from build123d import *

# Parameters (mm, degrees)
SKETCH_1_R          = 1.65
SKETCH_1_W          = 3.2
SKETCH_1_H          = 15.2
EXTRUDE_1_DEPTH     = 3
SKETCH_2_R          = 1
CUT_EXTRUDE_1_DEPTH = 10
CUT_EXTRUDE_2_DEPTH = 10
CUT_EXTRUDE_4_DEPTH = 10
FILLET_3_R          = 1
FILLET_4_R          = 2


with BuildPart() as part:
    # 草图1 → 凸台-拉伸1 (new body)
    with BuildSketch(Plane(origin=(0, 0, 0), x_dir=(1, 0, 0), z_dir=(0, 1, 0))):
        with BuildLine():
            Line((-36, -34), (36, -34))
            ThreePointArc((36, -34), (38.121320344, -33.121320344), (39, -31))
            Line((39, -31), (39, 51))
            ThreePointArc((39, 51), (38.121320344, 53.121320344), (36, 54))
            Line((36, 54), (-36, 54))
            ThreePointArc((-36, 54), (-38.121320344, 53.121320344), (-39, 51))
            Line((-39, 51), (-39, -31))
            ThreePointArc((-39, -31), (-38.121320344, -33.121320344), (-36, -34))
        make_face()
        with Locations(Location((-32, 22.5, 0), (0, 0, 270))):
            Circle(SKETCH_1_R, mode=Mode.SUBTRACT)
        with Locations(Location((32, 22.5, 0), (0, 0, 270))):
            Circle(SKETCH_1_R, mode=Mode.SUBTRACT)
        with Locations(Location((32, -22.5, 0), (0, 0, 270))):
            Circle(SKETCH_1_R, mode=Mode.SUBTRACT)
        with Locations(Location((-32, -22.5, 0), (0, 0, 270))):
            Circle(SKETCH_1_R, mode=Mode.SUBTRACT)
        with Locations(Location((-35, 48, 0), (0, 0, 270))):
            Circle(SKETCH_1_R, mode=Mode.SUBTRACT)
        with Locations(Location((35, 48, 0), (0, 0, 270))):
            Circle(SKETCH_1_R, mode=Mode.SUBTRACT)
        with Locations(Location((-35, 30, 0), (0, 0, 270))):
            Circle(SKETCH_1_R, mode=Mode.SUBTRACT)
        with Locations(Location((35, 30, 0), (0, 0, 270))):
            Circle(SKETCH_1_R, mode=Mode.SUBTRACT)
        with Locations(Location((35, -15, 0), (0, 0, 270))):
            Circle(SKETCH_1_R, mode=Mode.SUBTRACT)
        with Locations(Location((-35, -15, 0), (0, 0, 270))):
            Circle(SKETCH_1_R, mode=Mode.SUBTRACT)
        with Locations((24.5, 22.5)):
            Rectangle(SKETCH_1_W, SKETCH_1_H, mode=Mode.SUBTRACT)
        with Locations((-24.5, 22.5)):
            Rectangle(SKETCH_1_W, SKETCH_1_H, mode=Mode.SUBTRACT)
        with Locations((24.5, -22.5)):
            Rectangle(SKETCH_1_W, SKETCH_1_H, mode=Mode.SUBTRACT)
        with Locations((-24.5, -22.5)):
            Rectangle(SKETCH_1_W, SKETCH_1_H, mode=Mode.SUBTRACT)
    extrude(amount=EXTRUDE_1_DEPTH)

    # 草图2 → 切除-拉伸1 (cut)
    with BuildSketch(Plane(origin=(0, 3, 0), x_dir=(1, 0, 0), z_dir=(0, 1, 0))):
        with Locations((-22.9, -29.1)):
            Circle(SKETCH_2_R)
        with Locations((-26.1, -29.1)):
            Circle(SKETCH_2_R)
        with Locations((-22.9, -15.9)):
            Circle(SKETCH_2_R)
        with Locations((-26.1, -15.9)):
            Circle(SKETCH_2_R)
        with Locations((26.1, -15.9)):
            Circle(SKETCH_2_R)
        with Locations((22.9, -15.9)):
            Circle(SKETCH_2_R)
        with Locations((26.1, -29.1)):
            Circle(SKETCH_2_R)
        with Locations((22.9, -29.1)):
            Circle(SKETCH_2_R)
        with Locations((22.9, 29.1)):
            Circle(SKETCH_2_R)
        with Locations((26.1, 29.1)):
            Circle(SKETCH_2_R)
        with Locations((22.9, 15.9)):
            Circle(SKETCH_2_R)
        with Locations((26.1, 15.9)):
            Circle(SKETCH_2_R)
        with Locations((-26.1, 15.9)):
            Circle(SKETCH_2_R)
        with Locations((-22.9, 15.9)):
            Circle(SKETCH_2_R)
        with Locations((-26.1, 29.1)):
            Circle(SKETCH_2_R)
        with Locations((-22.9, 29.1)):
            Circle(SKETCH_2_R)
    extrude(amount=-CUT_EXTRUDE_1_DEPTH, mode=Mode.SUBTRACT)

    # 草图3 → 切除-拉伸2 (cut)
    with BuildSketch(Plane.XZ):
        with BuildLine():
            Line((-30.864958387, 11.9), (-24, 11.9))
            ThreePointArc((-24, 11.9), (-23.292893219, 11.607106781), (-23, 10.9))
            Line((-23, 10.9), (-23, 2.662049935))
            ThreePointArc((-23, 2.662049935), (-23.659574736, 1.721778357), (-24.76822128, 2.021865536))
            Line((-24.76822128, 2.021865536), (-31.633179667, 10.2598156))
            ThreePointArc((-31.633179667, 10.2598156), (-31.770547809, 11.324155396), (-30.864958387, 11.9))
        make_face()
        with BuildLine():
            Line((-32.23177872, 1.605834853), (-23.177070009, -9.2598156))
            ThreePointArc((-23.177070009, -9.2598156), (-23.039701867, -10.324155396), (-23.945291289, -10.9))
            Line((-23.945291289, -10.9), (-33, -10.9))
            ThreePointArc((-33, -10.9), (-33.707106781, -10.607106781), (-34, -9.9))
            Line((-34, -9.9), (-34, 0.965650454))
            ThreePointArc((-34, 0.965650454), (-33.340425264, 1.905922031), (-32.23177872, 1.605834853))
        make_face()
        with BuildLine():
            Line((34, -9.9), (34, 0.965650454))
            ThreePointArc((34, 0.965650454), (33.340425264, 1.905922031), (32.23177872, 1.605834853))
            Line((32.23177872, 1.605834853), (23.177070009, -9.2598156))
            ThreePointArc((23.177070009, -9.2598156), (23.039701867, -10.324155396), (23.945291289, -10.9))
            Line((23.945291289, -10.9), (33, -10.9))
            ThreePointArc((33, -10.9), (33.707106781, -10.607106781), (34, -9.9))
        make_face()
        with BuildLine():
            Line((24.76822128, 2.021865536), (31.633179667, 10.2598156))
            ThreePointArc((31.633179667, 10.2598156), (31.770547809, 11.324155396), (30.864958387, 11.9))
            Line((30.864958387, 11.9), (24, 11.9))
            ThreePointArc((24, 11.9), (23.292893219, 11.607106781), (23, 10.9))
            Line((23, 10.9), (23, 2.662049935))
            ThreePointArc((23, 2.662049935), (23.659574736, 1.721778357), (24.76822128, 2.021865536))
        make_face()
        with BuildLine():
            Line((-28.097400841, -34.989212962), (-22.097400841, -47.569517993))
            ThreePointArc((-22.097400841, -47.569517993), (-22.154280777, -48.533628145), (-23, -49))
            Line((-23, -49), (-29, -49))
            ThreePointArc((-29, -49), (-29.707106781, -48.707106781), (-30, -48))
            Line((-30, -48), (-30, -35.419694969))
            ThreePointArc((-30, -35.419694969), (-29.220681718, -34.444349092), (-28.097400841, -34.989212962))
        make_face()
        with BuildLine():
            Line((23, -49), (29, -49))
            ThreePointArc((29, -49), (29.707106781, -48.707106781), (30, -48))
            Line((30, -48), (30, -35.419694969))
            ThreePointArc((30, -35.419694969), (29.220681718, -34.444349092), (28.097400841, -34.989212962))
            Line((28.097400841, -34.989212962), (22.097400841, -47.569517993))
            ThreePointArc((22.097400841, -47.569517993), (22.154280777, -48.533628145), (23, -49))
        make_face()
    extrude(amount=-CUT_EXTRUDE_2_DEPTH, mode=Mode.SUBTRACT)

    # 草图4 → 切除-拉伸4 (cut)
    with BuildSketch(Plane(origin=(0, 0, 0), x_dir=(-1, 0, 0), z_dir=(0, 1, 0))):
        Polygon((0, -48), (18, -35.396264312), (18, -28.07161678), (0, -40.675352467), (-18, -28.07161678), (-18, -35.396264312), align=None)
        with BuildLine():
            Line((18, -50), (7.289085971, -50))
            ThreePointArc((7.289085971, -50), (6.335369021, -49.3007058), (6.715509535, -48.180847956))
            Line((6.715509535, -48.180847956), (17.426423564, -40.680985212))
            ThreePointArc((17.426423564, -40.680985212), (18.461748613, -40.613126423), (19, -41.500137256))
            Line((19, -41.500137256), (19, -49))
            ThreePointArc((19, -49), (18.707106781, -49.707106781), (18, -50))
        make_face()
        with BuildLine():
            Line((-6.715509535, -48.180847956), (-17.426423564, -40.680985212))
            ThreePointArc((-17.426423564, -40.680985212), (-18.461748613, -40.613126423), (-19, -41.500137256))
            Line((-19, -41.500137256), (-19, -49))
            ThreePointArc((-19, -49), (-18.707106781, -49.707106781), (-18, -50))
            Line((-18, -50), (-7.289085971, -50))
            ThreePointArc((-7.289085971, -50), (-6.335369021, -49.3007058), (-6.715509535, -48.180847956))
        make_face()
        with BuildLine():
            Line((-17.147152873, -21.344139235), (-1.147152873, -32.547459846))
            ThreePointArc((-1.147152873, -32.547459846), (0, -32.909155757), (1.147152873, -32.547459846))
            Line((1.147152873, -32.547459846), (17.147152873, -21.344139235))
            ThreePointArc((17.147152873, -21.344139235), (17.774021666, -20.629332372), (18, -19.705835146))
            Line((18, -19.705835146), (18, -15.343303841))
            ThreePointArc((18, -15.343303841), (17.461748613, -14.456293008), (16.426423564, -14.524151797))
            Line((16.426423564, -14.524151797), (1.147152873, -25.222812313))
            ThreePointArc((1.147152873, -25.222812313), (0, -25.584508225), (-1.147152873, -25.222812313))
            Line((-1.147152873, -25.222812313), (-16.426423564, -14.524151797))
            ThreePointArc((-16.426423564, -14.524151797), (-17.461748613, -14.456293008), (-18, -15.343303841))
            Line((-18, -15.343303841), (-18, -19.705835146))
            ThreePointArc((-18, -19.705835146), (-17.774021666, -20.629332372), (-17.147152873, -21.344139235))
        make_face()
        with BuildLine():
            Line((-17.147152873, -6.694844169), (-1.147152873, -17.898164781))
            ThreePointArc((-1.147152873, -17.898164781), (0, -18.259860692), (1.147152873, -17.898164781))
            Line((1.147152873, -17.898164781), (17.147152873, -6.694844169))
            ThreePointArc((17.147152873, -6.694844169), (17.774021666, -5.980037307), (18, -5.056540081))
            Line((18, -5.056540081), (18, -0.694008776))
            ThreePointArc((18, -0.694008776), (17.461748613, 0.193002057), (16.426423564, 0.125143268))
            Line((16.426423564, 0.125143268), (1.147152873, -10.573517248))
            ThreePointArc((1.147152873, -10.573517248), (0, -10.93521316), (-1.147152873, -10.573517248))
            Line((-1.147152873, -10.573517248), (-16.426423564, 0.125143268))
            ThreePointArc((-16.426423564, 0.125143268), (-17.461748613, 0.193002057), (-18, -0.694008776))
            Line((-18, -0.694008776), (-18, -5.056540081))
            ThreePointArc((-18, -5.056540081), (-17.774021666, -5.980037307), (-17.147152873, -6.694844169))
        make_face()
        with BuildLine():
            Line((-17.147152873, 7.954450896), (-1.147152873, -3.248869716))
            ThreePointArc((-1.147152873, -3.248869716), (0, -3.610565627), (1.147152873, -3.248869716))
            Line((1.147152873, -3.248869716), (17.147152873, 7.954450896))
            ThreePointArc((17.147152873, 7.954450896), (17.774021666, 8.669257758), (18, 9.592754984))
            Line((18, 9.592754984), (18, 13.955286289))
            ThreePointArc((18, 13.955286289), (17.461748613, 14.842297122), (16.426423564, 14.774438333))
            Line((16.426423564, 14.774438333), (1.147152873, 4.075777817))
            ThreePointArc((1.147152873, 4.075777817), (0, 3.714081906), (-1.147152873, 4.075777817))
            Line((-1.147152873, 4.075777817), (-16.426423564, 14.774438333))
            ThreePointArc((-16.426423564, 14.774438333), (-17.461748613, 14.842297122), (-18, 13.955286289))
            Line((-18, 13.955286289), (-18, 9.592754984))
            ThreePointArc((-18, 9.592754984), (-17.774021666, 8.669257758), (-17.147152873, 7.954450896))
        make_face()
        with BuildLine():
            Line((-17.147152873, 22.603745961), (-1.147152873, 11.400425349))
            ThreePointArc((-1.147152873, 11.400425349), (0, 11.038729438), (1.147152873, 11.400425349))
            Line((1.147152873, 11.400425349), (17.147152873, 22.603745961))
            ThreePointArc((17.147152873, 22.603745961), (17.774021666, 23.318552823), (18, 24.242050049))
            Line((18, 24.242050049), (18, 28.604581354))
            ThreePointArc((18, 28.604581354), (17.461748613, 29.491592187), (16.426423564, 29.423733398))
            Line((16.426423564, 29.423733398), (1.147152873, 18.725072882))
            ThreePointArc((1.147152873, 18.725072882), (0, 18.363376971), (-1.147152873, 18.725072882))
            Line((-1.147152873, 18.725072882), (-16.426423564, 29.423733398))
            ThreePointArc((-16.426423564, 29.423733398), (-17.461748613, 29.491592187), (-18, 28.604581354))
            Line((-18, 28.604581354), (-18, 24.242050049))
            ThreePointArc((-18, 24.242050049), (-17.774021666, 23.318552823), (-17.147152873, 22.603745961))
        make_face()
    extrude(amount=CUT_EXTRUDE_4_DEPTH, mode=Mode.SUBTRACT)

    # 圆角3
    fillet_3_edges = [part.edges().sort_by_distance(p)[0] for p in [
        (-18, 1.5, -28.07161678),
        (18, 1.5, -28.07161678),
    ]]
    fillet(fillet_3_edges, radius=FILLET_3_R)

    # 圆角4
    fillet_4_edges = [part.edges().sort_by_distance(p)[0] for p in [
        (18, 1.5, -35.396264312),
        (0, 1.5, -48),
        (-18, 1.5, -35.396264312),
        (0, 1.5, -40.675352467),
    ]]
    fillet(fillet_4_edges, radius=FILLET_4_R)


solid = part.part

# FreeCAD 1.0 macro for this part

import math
import FreeCAD as App
import Part
import Sketcher

V = App.Vector
Q = App.Units.Quantity


def edges_at(feature, points):
    """Names of the edges that pass closest to the given points."""
    edges = feature.Shape.Edges
    near = lambda p: min(range(len(edges)), key=lambda i: edges[i].distToShape(Part.Vertex(*p))[0])
    return sorted({f"Edge{near(p) + 1}" for p in points})


def add_polygon(sketch, points):
    """Adds a closed chain of lines whose ends are joined by coincident constraints."""
    first, n = sketch.GeometryCount, len(points)
    for a, b in zip(points, points[1:] + points[:1]):
        sketch.addGeometry(Part.LineSegment(App.Vector(*a, 0), App.Vector(*b, 0)), False)
    for i in range(n):
        sketch.addConstraint(Sketcher.Constraint("Coincident", first + i, 2, first + (i + 1) % n, 1))

doc = App.newDocument("Part")
body = doc.addObject("PartDesign::Body", "Body")

sketch1 = body.newObject("Sketcher::SketchObject", "Sketch")
sketch1.AttachmentSupport = (doc.getObject("XZ_Plane"), [""])
sketch1.MapMode = "FlatFace"
sketch1.addGeometry(Part.LineSegment(V(-36, 34, 0), V(36, 34, 0)), False)
sketch1.addGeometry(Part.ArcOfCircle(Part.Circle(V(36, 31, 0), V(0, 0, 1), 3), math.radians(0), math.radians(90)), False)
sketch1.addGeometry(Part.LineSegment(V(39, 31, 0), V(39, -51, 0)), False)
sketch1.addGeometry(Part.ArcOfCircle(Part.Circle(V(36, -51, 0), V(0, 0, 1), 3), math.radians(-90), math.radians(0)), False)
sketch1.addGeometry(Part.LineSegment(V(36, -54, 0), V(-36, -54, 0)), False)
sketch1.addGeometry(Part.ArcOfCircle(Part.Circle(V(-36, -51, 0), V(0, 0, 1), 3), math.radians(180), math.radians(270)), False)
sketch1.addGeometry(Part.LineSegment(V(-39, -51, 0), V(-39, 31, 0)), False)
sketch1.addGeometry(Part.ArcOfCircle(Part.Circle(V(-36, 31, 0), V(0, 0, 1), 3), math.radians(90), math.radians(180)), False)
sketch1.addGeometry(Part.Circle(V(-32, 22.5, 0), V(0, 0, 1), 1.6), False)
add_polygon(sketch1, [(-22.9, 30.1), (-26.1, 30.1), (-26.1, 14.9), (-22.9, 14.9)])
sketch1.addGeometry(Part.Circle(V(-35, 15, 0), V(0, 0, 1), 1.6), False)
add_polygon(sketch1, [(26.1, 30.1), (22.9, 30.1), (22.9, 14.9), (26.1, 14.9)])
sketch1.addGeometry(Part.Circle(V(32, 22.5, 0), V(0, 0, 1), 1.6), False)
sketch1.addGeometry(Part.Circle(V(35, 15, 0), V(0, 0, 1), 1.6), False)
sketch1.addGeometry(Part.Circle(V(-32, -22.5, 0), V(0, 0, 1), 1.6), False)
add_polygon(sketch1, [(-22.9, -14.9), (-26.1, -14.9), (-26.1, -30.1), (-22.9, -30.1)])
sketch1.addGeometry(Part.Circle(V(-35, -30, 0), V(0, 0, 1), 1.6), False)
sketch1.addGeometry(Part.Circle(V(-35, -48, 0), V(0, 0, 1), 1.6), False)
add_polygon(sketch1, [(26.1, -14.9), (22.9, -14.9), (22.9, -30.1), (26.1, -30.1)])
sketch1.addGeometry(Part.Circle(V(32, -22.5, 0), V(0, 0, 1), 1.6), False)
sketch1.addGeometry(Part.Circle(V(35, -30, 0), V(0, 0, 1), 1.6), False)
sketch1.addGeometry(Part.Circle(V(35, -48, 0), V(0, 0, 1), 1.6), False)
sketch1.addConstraint([
    Sketcher.Constraint("Tangent", 0, 2, 1, 2),
    Sketcher.Constraint("Tangent", 1, 1, 2, 1),
    Sketcher.Constraint("Tangent", 2, 2, 3, 2),
    Sketcher.Constraint("Tangent", 3, 1, 4, 1),
    Sketcher.Constraint("Tangent", 4, 2, 5, 2),
    Sketcher.Constraint("Tangent", 5, 1, 6, 1),
    Sketcher.Constraint("Tangent", 6, 2, 7, 2),
    Sketcher.Constraint("Tangent", 7, 1, 0, 1),
    Sketcher.Constraint("Horizontal", 0),
    Sketcher.Constraint("Vertical", 2),
    Sketcher.Constraint("Horizontal", 4),
    Sketcher.Constraint("Vertical", 6),
    Sketcher.Constraint("Horizontal", 9),
    Sketcher.Constraint("Vertical", 10),
    Sketcher.Constraint("Horizontal", 11),
    Sketcher.Constraint("Vertical", 12),
    Sketcher.Constraint("Horizontal", 14),
    Sketcher.Constraint("Vertical", 15),
    Sketcher.Constraint("Horizontal", 16),
    Sketcher.Constraint("Vertical", 17),
    Sketcher.Constraint("Horizontal", 21),
    Sketcher.Constraint("Vertical", 22),
    Sketcher.Constraint("Horizontal", 23),
    Sketcher.Constraint("Vertical", 24),
    Sketcher.Constraint("Horizontal", 27),
    Sketcher.Constraint("Vertical", 28),
    Sketcher.Constraint("Horizontal", 29),
    Sketcher.Constraint("Vertical", 30),
    Sketcher.Constraint("Equal", 1, 3),
    Sketcher.Constraint("Equal", 3, 5),
    Sketcher.Constraint("Equal", 5, 7),
    Sketcher.Constraint("Equal", 8, 13),
    Sketcher.Constraint("Equal", 13, 18),
    Sketcher.Constraint("Equal", 18, 19),
    Sketcher.Constraint("Equal", 19, 20),
    Sketcher.Constraint("Equal", 20, 25),
    Sketcher.Constraint("Equal", 25, 26),
    Sketcher.Constraint("Equal", 26, 31),
    Sketcher.Constraint("Equal", 31, 32),
    Sketcher.Constraint("Equal", 32, 33),
    Sketcher.Constraint("Symmetric", 18, 3, 20, 3, -1, 1),
    Sketcher.Constraint("Symmetric", 8, 3, 31, 3, -1, 1),
    Sketcher.Constraint("Symmetric", 16, 2, 21, 2, -1, 1),
    Sketcher.Constraint("Symmetric", 14, 2, 23, 2, -1, 1),
    Sketcher.Constraint("Symmetric", 11, 2, 27, 2, -1, 1),
    Sketcher.Constraint("Symmetric", 9, 2, 29, 2, -1, 1),
    Sketcher.Constraint("Symmetric", 8, 3, 18, 3, -2),
    Sketcher.Constraint("Symmetric", 13, 3, 19, 3, -2),
    Sketcher.Constraint("Symmetric", 25, 3, 32, 3, -2),
    Sketcher.Constraint("Symmetric", 26, 3, 33, 3, -2),
    Sketcher.Constraint("Symmetric", 12, 2, 14, 2, -2),
    Sketcher.Constraint("Symmetric", 10, 2, 16, 2, -2),
    Sketcher.Constraint("Vertical", 13, 3, 25, 3),
    Sketcher.Constraint("Vertical", 25, 3, 26, 3),
    Sketcher.Constraint("Radius", 1, Q("3 mm")),
    Sketcher.Constraint("Diameter", 8, Q("3.3 mm")),
    Sketcher.Constraint("DistanceX", 0, 1, 0, 2, Q("72 mm")),
    Sketcher.Constraint("DistanceY", 2, 2, 2, 1, Q("82 mm")),
    Sketcher.Constraint("DistanceX", 9, 2, 9, 1, Q("3.2 mm")),
    Sketcher.Constraint("DistanceY", 10, 2, 10, 1, Q("15.2 mm")),
    Sketcher.Constraint("DistanceX", -1, 1, 1, 3, Q("36 mm")),
    Sketcher.Constraint("DistanceY", -1, 1, 1, 3, Q("31 mm")),
    Sketcher.Constraint("DistanceX", 8, 3, -1, 1, Q("32 mm")),
    Sketcher.Constraint("DistanceX", 13, 3, -1, 1, Q("35 mm")),
    Sketcher.Constraint("DistanceY", -1, 1, 13, 3, Q("15 mm")),
    Sketcher.Constraint("DistanceY", 25, 3, -1, 1, Q("30 mm")),
    Sketcher.Constraint("DistanceY", 26, 3, -1, 1, Q("48 mm")),
    Sketcher.Constraint("DistanceY", 20, 3, 8, 3, Q("45 mm")),
    Sketcher.Constraint("DistanceX", 9, 2, -1, 1, Q("26.1 mm")),
    Sketcher.Constraint("DistanceY", -1, 1, 9, 2, Q("30.1 mm")),
])
pad1 = body.newObject("PartDesign::Pad", "Pad")
pad1.Profile = sketch1
pad1.Length = 3
pad1.Reversed = True

sketch2 = body.newObject("Sketcher::SketchObject", "Sketch001")
sketch2.AttachmentSupport = (doc.getObject("XZ_Plane"), [""])
sketch2.MapMode = "FlatFace"
sketch2.AttachmentOffset = App.Placement(V(0, 0, -3), App.Rotation())
sketch2.addGeometry([
    Part.Circle(V(-22.9, 29.1, 0), V(0, 0, 1), 1),
    Part.Circle(V(-26.1, 29.1, 0), V(0, 0, 1), 1),
    Part.Circle(V(-22.9, 15.9, 0), V(0, 0, 1), 1),
    Part.Circle(V(-26.1, 15.9, 0), V(0, 0, 1), 1),
    Part.Circle(V(26.1, 15.9, 0), V(0, 0, 1), 1),
    Part.Circle(V(22.9, 15.9, 0), V(0, 0, 1), 1),
    Part.Circle(V(26.1, 29.1, 0), V(0, 0, 1), 1),
    Part.Circle(V(22.9, 29.1, 0), V(0, 0, 1), 1),
    Part.Circle(V(22.9, -29.1, 0), V(0, 0, 1), 1),
    Part.Circle(V(26.1, -29.1, 0), V(0, 0, 1), 1),
    Part.Circle(V(22.9, -15.9, 0), V(0, 0, 1), 1),
    Part.Circle(V(26.1, -15.9, 0), V(0, 0, 1), 1),
    Part.Circle(V(-26.1, -15.9, 0), V(0, 0, 1), 1),
    Part.Circle(V(-22.9, -15.9, 0), V(0, 0, 1), 1),
    Part.Circle(V(-26.1, -29.1, 0), V(0, 0, 1), 1),
    Part.Circle(V(-22.9, -29.1, 0), V(0, 0, 1), 1),
], False)
sketch2.addConstraint([
    Sketcher.Constraint("Equal", 0, 1),
    Sketcher.Constraint("Equal", 1, 2),
    Sketcher.Constraint("Equal", 2, 3),
    Sketcher.Constraint("Equal", 3, 4),
    Sketcher.Constraint("Equal", 4, 5),
    Sketcher.Constraint("Equal", 5, 6),
    Sketcher.Constraint("Equal", 6, 7),
    Sketcher.Constraint("Equal", 7, 8),
    Sketcher.Constraint("Equal", 8, 9),
    Sketcher.Constraint("Equal", 9, 10),
    Sketcher.Constraint("Equal", 10, 11),
    Sketcher.Constraint("Equal", 11, 12),
    Sketcher.Constraint("Equal", 12, 13),
    Sketcher.Constraint("Equal", 13, 14),
    Sketcher.Constraint("Equal", 14, 15),
    Sketcher.Constraint("Symmetric", 0, 3, 8, 3, -1, 1),
    Sketcher.Constraint("Symmetric", 1, 3, 9, 3, -1, 1),
    Sketcher.Constraint("Symmetric", 2, 3, 10, 3, -1, 1),
    Sketcher.Constraint("Symmetric", 3, 3, 11, 3, -1, 1),
    Sketcher.Constraint("Symmetric", 4, 3, 12, 3, -1, 1),
    Sketcher.Constraint("Symmetric", 5, 3, 13, 3, -1, 1),
    Sketcher.Constraint("Symmetric", 6, 3, 14, 3, -1, 1),
    Sketcher.Constraint("Symmetric", 7, 3, 15, 3, -1, 1),
    Sketcher.Constraint("Symmetric", 3, 3, 4, 3, -2),
    Sketcher.Constraint("Symmetric", 2, 3, 5, 3, -2),
    Sketcher.Constraint("Symmetric", 1, 3, 6, 3, -2),
    Sketcher.Constraint("Symmetric", 0, 3, 7, 3, -2),
    Sketcher.Constraint("Horizontal", 0, 3, 1, 3),
    Sketcher.Constraint("Horizontal", 2, 3, 3, 3),
    Sketcher.Constraint("Vertical", 0, 3, 2, 3),
    Sketcher.Constraint("Vertical", 1, 3, 3, 3),
    Sketcher.Constraint("Diameter", 0, Q("2 mm")),
    Sketcher.Constraint("DistanceX", 2, 3, 4, 3, Q("49 mm")),
    Sketcher.Constraint("DistanceY", 8, 3, 5, 3, Q("45 mm")),
    Sketcher.Constraint("DistanceX", 0, 3, -1, 1, Q("22.9 mm")),
    Sketcher.Constraint("DistanceY", -1, 1, 0, 3, Q("29.1 mm")),
])
pocket1 = body.newObject("PartDesign::Pocket", "Pocket")
pocket1.Profile = sketch2
pocket1.Length = 10
pocket1.Reversed = True

sketch3 = body.newObject("Sketcher::SketchObject", "Sketch002")
sketch3.AttachmentSupport = (doc.getObject("XZ_Plane"), [""])
sketch3.MapMode = "FlatFace"
sketch3.addGeometry([
    Part.LineSegment(V(-24, 11.9, 0), V(-30.9, 11.9, 0)),
    Part.ArcOfCircle(Part.Circle(V(-30.9, 10.9, 0), V(0, 0, 1), 1), math.radians(90), math.radians(220)),
    Part.LineSegment(V(-31.6, 10.3, 0), V(-24.8, 2, 0)),
    Part.ArcOfCircle(Part.Circle(V(-24, 2.7, 0), V(0, 0, 1), 1), math.radians(-140), math.radians(0)),
    Part.LineSegment(V(-23, 2.7, 0), V(-23, 10.9, 0)),
    Part.ArcOfCircle(Part.Circle(V(-24, 10.9, 0), V(0, 0, 1), 1), math.radians(0), math.radians(90)),
    Part.LineSegment(V(-23.2, -9.3, 0), V(-32.2, 1.6, 0)),
    Part.ArcOfCircle(Part.Circle(V(-33, 1, 0), V(0, 0, 1), 1), math.radians(40), math.radians(180)),
    Part.LineSegment(V(-34, 1, 0), V(-34, -9.9, 0)),
    Part.ArcOfCircle(Part.Circle(V(-33, -9.9, 0), V(0, 0, 1), 1), math.radians(-180), math.radians(-90)),
    Part.LineSegment(V(-33, -10.9, 0), V(-23.9, -10.9, 0)),
    Part.ArcOfCircle(Part.Circle(V(-23.9, -9.9, 0), V(0, 0, 1), 1), math.radians(-90), math.radians(40)),
    Part.LineSegment(V(34, -9.9, 0), V(34, 1, 0)),
    Part.ArcOfCircle(Part.Circle(V(33, 1, 0), V(0, 0, 1), 1), math.radians(0), math.radians(140)),
    Part.LineSegment(V(32.2, 1.6, 0), V(23.2, -9.3, 0)),
    Part.ArcOfCircle(Part.Circle(V(23.9, -9.9, 0), V(0, 0, 1), 1), math.radians(140), math.radians(270)),
    Part.LineSegment(V(23.9, -10.9, 0), V(33, -10.9, 0)),
    Part.ArcOfCircle(Part.Circle(V(33, -9.9, 0), V(0, 0, 1), 1), math.radians(-90), math.radians(0)),
    Part.LineSegment(V(24.8, 2, 0), V(31.6, 10.3, 0)),
    Part.ArcOfCircle(Part.Circle(V(30.9, 10.9, 0), V(0, 0, 1), 1), math.radians(-40), math.radians(90)),
    Part.LineSegment(V(30.9, 11.9, 0), V(24, 11.9, 0)),
    Part.ArcOfCircle(Part.Circle(V(24, 10.9, 0), V(0, 0, 1), 1), math.radians(90), math.radians(180)),
    Part.LineSegment(V(23, 10.9, 0), V(23, 2.7, 0)),
    Part.ArcOfCircle(Part.Circle(V(24, 2.7, 0), V(0, 0, 1), 1), math.radians(180), math.radians(320)),
    Part.LineSegment(V(-22.1, -47.6, 0), V(-28.1, -35, 0)),
    Part.ArcOfCircle(Part.Circle(V(-29, -35.4, 0), V(0, 0, 1), 1), math.radians(25), math.radians(180)),
    Part.LineSegment(V(-30, -35.4, 0), V(-30, -48, 0)),
    Part.ArcOfCircle(Part.Circle(V(-29, -48, 0), V(0, 0, 1), 1), math.radians(-180), math.radians(-90)),
    Part.LineSegment(V(-29, -49, 0), V(-23, -49, 0)),
    Part.ArcOfCircle(Part.Circle(V(-23, -48, 0), V(0, 0, 1), 1), math.radians(-90), math.radians(25)),
    Part.LineSegment(V(23, -49, 0), V(29, -49, 0)),
    Part.ArcOfCircle(Part.Circle(V(29, -48, 0), V(0, 0, 1), 1), math.radians(-90), math.radians(0)),
    Part.LineSegment(V(30, -48, 0), V(30, -35.4, 0)),
    Part.ArcOfCircle(Part.Circle(V(29, -35.4, 0), V(0, 0, 1), 1), math.radians(0), math.radians(155)),
    Part.LineSegment(V(28.1, -35, 0), V(22.1, -47.6, 0)),
    Part.ArcOfCircle(Part.Circle(V(23, -48, 0), V(0, 0, 1), 1), math.radians(155), math.radians(270)),
], False)
sketch3.addConstraint([
    Sketcher.Constraint("Tangent", 0, 2, 1, 1),
    Sketcher.Constraint("Tangent", 1, 2, 2, 1),
    Sketcher.Constraint("Tangent", 2, 2, 3, 1),
    Sketcher.Constraint("Tangent", 3, 2, 4, 1),
    Sketcher.Constraint("Tangent", 4, 2, 5, 1),
    Sketcher.Constraint("Tangent", 5, 2, 0, 1),
    Sketcher.Constraint("Tangent", 6, 2, 7, 1),
    Sketcher.Constraint("Tangent", 7, 2, 8, 1),
    Sketcher.Constraint("Tangent", 8, 2, 9, 1),
    Sketcher.Constraint("Tangent", 9, 2, 10, 1),
    Sketcher.Constraint("Tangent", 10, 2, 11, 1),
    Sketcher.Constraint("Tangent", 11, 2, 6, 1),
    Sketcher.Constraint("Tangent", 12, 2, 13, 1),
    Sketcher.Constraint("Tangent", 13, 2, 14, 1),
    Sketcher.Constraint("Tangent", 14, 2, 15, 1),
    Sketcher.Constraint("Tangent", 15, 2, 16, 1),
    Sketcher.Constraint("Tangent", 16, 2, 17, 1),
    Sketcher.Constraint("Tangent", 17, 2, 12, 1),
    Sketcher.Constraint("Tangent", 18, 2, 19, 1),
    Sketcher.Constraint("Tangent", 19, 2, 20, 1),
    Sketcher.Constraint("Tangent", 20, 2, 21, 1),
    Sketcher.Constraint("Tangent", 21, 2, 22, 1),
    Sketcher.Constraint("Tangent", 22, 2, 23, 1),
    Sketcher.Constraint("Tangent", 23, 2, 18, 1),
    Sketcher.Constraint("Tangent", 24, 2, 25, 1),
    Sketcher.Constraint("Tangent", 25, 2, 26, 1),
    Sketcher.Constraint("Tangent", 26, 2, 27, 1),
    Sketcher.Constraint("Tangent", 27, 2, 28, 1),
    Sketcher.Constraint("Tangent", 28, 2, 29, 1),
    Sketcher.Constraint("Tangent", 29, 2, 24, 1),
    Sketcher.Constraint("Tangent", 30, 2, 31, 1),
    Sketcher.Constraint("Tangent", 31, 2, 32, 1),
    Sketcher.Constraint("Tangent", 32, 2, 33, 1),
    Sketcher.Constraint("Tangent", 33, 2, 34, 1),
    Sketcher.Constraint("Tangent", 34, 2, 35, 1),
    Sketcher.Constraint("Tangent", 35, 2, 30, 1),
    Sketcher.Constraint("Horizontal", 0),
    Sketcher.Constraint("Vertical", 4),
    Sketcher.Constraint("Vertical", 8),
    Sketcher.Constraint("Horizontal", 10),
    Sketcher.Constraint("Vertical", 12),
    Sketcher.Constraint("Horizontal", 16),
    Sketcher.Constraint("Horizontal", 20),
    Sketcher.Constraint("Vertical", 22),
    Sketcher.Constraint("Vertical", 26),
    Sketcher.Constraint("Horizontal", 28),
    Sketcher.Constraint("Horizontal", 30),
    Sketcher.Constraint("Vertical", 32),
    Sketcher.Constraint("Equal", 1, 3),
    Sketcher.Constraint("Equal", 3, 5),
    Sketcher.Constraint("Equal", 5, 7),
    Sketcher.Constraint("Equal", 7, 9),
    Sketcher.Constraint("Equal", 9, 11),
    Sketcher.Constraint("Equal", 11, 13),
    Sketcher.Constraint("Equal", 13, 15),
    Sketcher.Constraint("Equal", 15, 17),
    Sketcher.Constraint("Equal", 17, 19),
    Sketcher.Constraint("Equal", 19, 21),
    Sketcher.Constraint("Equal", 21, 23),
    Sketcher.Constraint("Equal", 23, 25),
    Sketcher.Constraint("Equal", 25, 27),
    Sketcher.Constraint("Equal", 27, 29),
    Sketcher.Constraint("Equal", 29, 31),
    Sketcher.Constraint("Equal", 31, 33),
    Sketcher.Constraint("Equal", 33, 35),
    Sketcher.Constraint("Symmetric", 7, 3, 13, 3, -2),
    Sketcher.Constraint("Symmetric", 11, 3, 15, 3, -2),
    Sketcher.Constraint("Symmetric", 1, 3, 19, 3, -2),
    Sketcher.Constraint("Symmetric", 3, 3, 23, 3, -2),
    Sketcher.Constraint("Symmetric", 27, 3, 31, 3, -2),
    Sketcher.Constraint("Symmetric", 24, 2, 33, 2, -2),
    Sketcher.Constraint("Parallel", 2, 6),
    Sketcher.Constraint("Vertical", 29, 3, 3, 2),
    Sketcher.Constraint("Radius", 1, Q("1 mm")),
    Sketcher.Constraint("DistanceX", 28, 1, 28, 2, Q("6 mm")),
    Sketcher.Constraint("DistanceX", 3, 3, -1, 1, Q("24 mm")),
    Sketcher.Constraint("DistanceX", 7, 3, -1, 1, Q("33 mm")),
    Sketcher.Constraint("DistanceY", 27, 3, -1, 1, Q("48 mm")),
    Sketcher.Constraint("DistanceY", -1, 1, 1, 3, Q("10.9 mm")),
    Sketcher.Constraint("DistanceY", 9, 3, -1, 1, Q("9.9 mm")),
    Sketcher.Constraint("DistanceX", 0, 2, 0, 1, Q("6.864958 mm")),
    Sketcher.Constraint("DistanceX", 10, 1, 10, 2, Q("9.054709 mm")),
    Sketcher.Constraint("DistanceY", 4, 1, 4, 2, Q("8.23795 mm")),
    Sketcher.Constraint("DistanceX", 24, 2, -1, 1, Q("28.097401 mm")),
])
pocket2 = body.newObject("PartDesign::Pocket", "Pocket001")
pocket2.Profile = sketch3
pocket2.Length = 10

sketch4 = body.newObject("Sketcher::SketchObject", "Sketch003")
sketch4.AttachmentSupport = (doc.getObject("XZ_Plane"), [""])
sketch4.MapMode = "FlatFace"
add_polygon(sketch4, [(0, -48), (-18, -35.4), (-18, -28.1), (0, -40.7), (18, -28.1), (18, -35.4)])
sketch4.addGeometry(Part.LineSegment(V(-7.3, -50, 0), V(-18, -50, 0)), False)
sketch4.addGeometry(Part.ArcOfCircle(Part.Circle(V(-18, -49, 0), V(0, 0, 1), 1), math.radians(-180), math.radians(-90)), False)
sketch4.addGeometry(Part.LineSegment(V(-19, -49, 0), V(-19, -41.5, 0)), False)
sketch4.addGeometry(Part.ArcOfCircle(Part.Circle(V(-18, -41.5, 0), V(0, 0, 1), 1), math.radians(55), math.radians(180)), False)
sketch4.addGeometry(Part.LineSegment(V(-17.4, -40.7, 0), V(-6.7, -48.2, 0)), False)
sketch4.addGeometry(Part.ArcOfCircle(Part.Circle(V(-7.3, -49, 0), V(0, 0, 1), 1), math.radians(-90), math.radians(55)), False)
sketch4.addGeometry(Part.LineSegment(V(6.7, -48.2, 0), V(17.4, -40.7, 0)), False)
sketch4.addGeometry(Part.ArcOfCircle(Part.Circle(V(18, -41.5, 0), V(0, 0, 1), 1), math.radians(0), math.radians(125)), False)
sketch4.addGeometry(Part.LineSegment(V(19, -41.5, 0), V(19, -49, 0)), False)
sketch4.addGeometry(Part.ArcOfCircle(Part.Circle(V(18, -49, 0), V(0, 0, 1), 1), math.radians(-90), math.radians(0)), False)
sketch4.addGeometry(Part.LineSegment(V(18, -50, 0), V(7.3, -50, 0)), False)
sketch4.addGeometry(Part.ArcOfCircle(Part.Circle(V(7.3, -49, 0), V(0, 0, 1), 1), math.radians(125), math.radians(270)), False)
sketch4.addGeometry(Part.LineSegment(V(17.1, -21.3, 0), V(1.1, -32.5, 0)), False)
sketch4.addGeometry(Part.ArcOfCircle(Part.Circle(V(0, -30.9, 0), V(0, 0, 1), 2), math.radians(-125), math.radians(-55)), False)
sketch4.addGeometry(Part.LineSegment(V(-1.1, -32.5, 0), V(-17.1, -21.3, 0)), False)
sketch4.addGeometry(Part.ArcOfCircle(Part.Circle(V(-16, -19.7, 0), V(0, 0, 1), 2), math.radians(-180), math.radians(-125)), False)
sketch4.addGeometry(Part.LineSegment(V(-18, -19.7, 0), V(-18, -15.3, 0)), False)
sketch4.addGeometry(Part.ArcOfCircle(Part.Circle(V(-17, -15.3, 0), V(0, 0, 1), 1), math.radians(55), math.radians(180)), False)
sketch4.addGeometry(Part.LineSegment(V(-16.4, -14.5, 0), V(-1.1, -25.2, 0)), False)
sketch4.addGeometry(Part.ArcOfCircle(Part.Circle(V(0, -23.6, 0), V(0, 0, 1), 2), math.radians(-125), math.radians(-55)), False)
sketch4.addGeometry(Part.LineSegment(V(1.1, -25.2, 0), V(16.4, -14.5, 0)), False)
sketch4.addGeometry(Part.ArcOfCircle(Part.Circle(V(17, -15.3, 0), V(0, 0, 1), 1), math.radians(0), math.radians(125)), False)
sketch4.addGeometry(Part.LineSegment(V(18, -15.3, 0), V(18, -19.7, 0)), False)
sketch4.addGeometry(Part.ArcOfCircle(Part.Circle(V(16, -19.7, 0), V(0, 0, 1), 2), math.radians(-55), math.radians(0)), False)
sketch4.addGeometry(Part.LineSegment(V(17.1, -6.7, 0), V(1.1, -17.9, 0)), False)
sketch4.addGeometry(Part.ArcOfCircle(Part.Circle(V(0, -16.3, 0), V(0, 0, 1), 2), math.radians(-125), math.radians(-55)), False)
sketch4.addGeometry(Part.LineSegment(V(-1.1, -17.9, 0), V(-17.1, -6.7, 0)), False)
sketch4.addGeometry(Part.ArcOfCircle(Part.Circle(V(-16, -5.1, 0), V(0, 0, 1), 2), math.radians(-180), math.radians(-125)), False)
sketch4.addGeometry(Part.LineSegment(V(-18, -5.1, 0), V(-18, -0.7, 0)), False)
sketch4.addGeometry(Part.ArcOfCircle(Part.Circle(V(-17, -0.7, 0), V(0, 0, 1), 1), math.radians(55), math.radians(180)), False)
sketch4.addGeometry(Part.LineSegment(V(-16.4, 0.1, 0), V(-1.1, -10.6, 0)), False)
sketch4.addGeometry(Part.ArcOfCircle(Part.Circle(V(0, -8.9, 0), V(0, 0, 1), 2), math.radians(-125), math.radians(-55)), False)
sketch4.addGeometry(Part.LineSegment(V(1.1, -10.6, 0), V(16.4, 0.1, 0)), False)
sketch4.addGeometry(Part.ArcOfCircle(Part.Circle(V(17, -0.7, 0), V(0, 0, 1), 1), math.radians(0), math.radians(125)), False)
sketch4.addGeometry(Part.LineSegment(V(18, -0.7, 0), V(18, -5.1, 0)), False)
sketch4.addGeometry(Part.ArcOfCircle(Part.Circle(V(16, -5.1, 0), V(0, 0, 1), 2), math.radians(-55), math.radians(0)), False)
sketch4.addGeometry(Part.LineSegment(V(17.1, 8, 0), V(1.1, -3.2, 0)), False)
sketch4.addGeometry(Part.ArcOfCircle(Part.Circle(V(0, -1.6, 0), V(0, 0, 1), 2), math.radians(-125), math.radians(-55)), False)
sketch4.addGeometry(Part.LineSegment(V(-1.1, -3.2, 0), V(-17.1, 8, 0)), False)
sketch4.addGeometry(Part.ArcOfCircle(Part.Circle(V(-16, 9.6, 0), V(0, 0, 1), 2), math.radians(-180), math.radians(-125)), False)
sketch4.addGeometry(Part.LineSegment(V(-18, 9.6, 0), V(-18, 14, 0)), False)
sketch4.addGeometry(Part.ArcOfCircle(Part.Circle(V(-17, 14, 0), V(0, 0, 1), 1), math.radians(55), math.radians(180)), False)
sketch4.addGeometry(Part.LineSegment(V(-16.4, 14.8, 0), V(-1.1, 4.1, 0)), False)
sketch4.addGeometry(Part.ArcOfCircle(Part.Circle(V(0, 5.7, 0), V(0, 0, 1), 2), math.radians(-125), math.radians(-55)), False)
sketch4.addGeometry(Part.LineSegment(V(1.1, 4.1, 0), V(16.4, 14.8, 0)), False)
sketch4.addGeometry(Part.ArcOfCircle(Part.Circle(V(17, 14, 0), V(0, 0, 1), 1), math.radians(0), math.radians(125)), False)
sketch4.addGeometry(Part.LineSegment(V(18, 14, 0), V(18, 9.6, 0)), False)
sketch4.addGeometry(Part.ArcOfCircle(Part.Circle(V(16, 9.6, 0), V(0, 0, 1), 2), math.radians(-55), math.radians(0)), False)
sketch4.addGeometry(Part.LineSegment(V(17.1, 22.6, 0), V(1.1, 11.4, 0)), False)
sketch4.addGeometry(Part.ArcOfCircle(Part.Circle(V(0, 13, 0), V(0, 0, 1), 2), math.radians(-125), math.radians(-55)), False)
sketch4.addGeometry(Part.LineSegment(V(-1.1, 11.4, 0), V(-17.1, 22.6, 0)), False)
sketch4.addGeometry(Part.ArcOfCircle(Part.Circle(V(-16, 24.2, 0), V(0, 0, 1), 2), math.radians(-180), math.radians(-125)), False)
sketch4.addGeometry(Part.LineSegment(V(-18, 24.2, 0), V(-18, 28.6, 0)), False)
sketch4.addGeometry(Part.ArcOfCircle(Part.Circle(V(-17, 28.6, 0), V(0, 0, 1), 1), math.radians(55), math.radians(180)), False)
sketch4.addGeometry(Part.LineSegment(V(-16.4, 29.4, 0), V(-1.1, 18.7, 0)), False)
sketch4.addGeometry(Part.ArcOfCircle(Part.Circle(V(0, 20.4, 0), V(0, 0, 1), 2), math.radians(-125), math.radians(-55)), False)
sketch4.addGeometry(Part.LineSegment(V(1.1, 18.7, 0), V(16.4, 29.4, 0)), False)
sketch4.addGeometry(Part.ArcOfCircle(Part.Circle(V(17, 28.6, 0), V(0, 0, 1), 1), math.radians(0), math.radians(125)), False)
sketch4.addGeometry(Part.LineSegment(V(18, 28.6, 0), V(18, 24.2, 0)), False)
sketch4.addGeometry(Part.ArcOfCircle(Part.Circle(V(16, 24.2, 0), V(0, 0, 1), 2), math.radians(-55), math.radians(0)), False)
sketch4.addConstraint([
    Sketcher.Constraint("Tangent", 6, 2, 7, 2),
    Sketcher.Constraint("Tangent", 7, 1, 8, 1),
    Sketcher.Constraint("Tangent", 8, 2, 9, 2),
    Sketcher.Constraint("Tangent", 9, 1, 10, 1),
    Sketcher.Constraint("Tangent", 10, 2, 11, 2),
    Sketcher.Constraint("Tangent", 11, 1, 6, 1),
    Sketcher.Constraint("Tangent", 12, 2, 13, 2),
    Sketcher.Constraint("Tangent", 13, 1, 14, 1),
    Sketcher.Constraint("Tangent", 14, 2, 15, 2),
    Sketcher.Constraint("Tangent", 15, 1, 16, 1),
    Sketcher.Constraint("Tangent", 16, 2, 17, 2),
    Sketcher.Constraint("Tangent", 17, 1, 12, 1),
    Sketcher.Constraint("Tangent", 18, 2, 19, 2),
    Sketcher.Constraint("Tangent", 19, 1, 20, 1),
    Sketcher.Constraint("Tangent", 20, 2, 21, 2),
    Sketcher.Constraint("Tangent", 21, 1, 22, 1),
    Sketcher.Constraint("Tangent", 22, 2, 23, 2),
    Sketcher.Constraint("Tangent", 23, 1, 24, 1),
    Sketcher.Constraint("Tangent", 24, 2, 25, 1),
    Sketcher.Constraint("Tangent", 25, 2, 26, 1),
    Sketcher.Constraint("Tangent", 26, 2, 27, 2),
    Sketcher.Constraint("Tangent", 27, 1, 28, 1),
    Sketcher.Constraint("Tangent", 28, 2, 29, 2),
    Sketcher.Constraint("Tangent", 29, 1, 18, 1),
    Sketcher.Constraint("Tangent", 30, 2, 31, 2),
    Sketcher.Constraint("Tangent", 31, 1, 32, 1),
    Sketcher.Constraint("Tangent", 32, 2, 33, 2),
    Sketcher.Constraint("Tangent", 33, 1, 34, 1),
    Sketcher.Constraint("Tangent", 34, 2, 35, 2),
    Sketcher.Constraint("Tangent", 35, 1, 36, 1),
    Sketcher.Constraint("Tangent", 36, 2, 37, 1),
    Sketcher.Constraint("Tangent", 37, 2, 38, 1),
    Sketcher.Constraint("Tangent", 38, 2, 39, 2),
    Sketcher.Constraint("Tangent", 39, 1, 40, 1),
    Sketcher.Constraint("Tangent", 40, 2, 41, 2),
    Sketcher.Constraint("Tangent", 41, 1, 30, 1),
    Sketcher.Constraint("Tangent", 42, 2, 43, 2),
    Sketcher.Constraint("Tangent", 43, 1, 44, 1),
    Sketcher.Constraint("Tangent", 44, 2, 45, 2),
    Sketcher.Constraint("Tangent", 45, 1, 46, 1),
    Sketcher.Constraint("Tangent", 46, 2, 47, 2),
    Sketcher.Constraint("Tangent", 47, 1, 48, 1),
    Sketcher.Constraint("Tangent", 48, 2, 49, 1),
    Sketcher.Constraint("Tangent", 49, 2, 50, 1),
    Sketcher.Constraint("Tangent", 50, 2, 51, 2),
    Sketcher.Constraint("Tangent", 51, 1, 52, 1),
    Sketcher.Constraint("Tangent", 52, 2, 53, 2),
    Sketcher.Constraint("Tangent", 53, 1, 42, 1),
    Sketcher.Constraint("Tangent", 54, 2, 55, 2),
    Sketcher.Constraint("Tangent", 55, 1, 56, 1),
    Sketcher.Constraint("Tangent", 56, 2, 57, 2),
    Sketcher.Constraint("Tangent", 57, 1, 58, 1),
    Sketcher.Constraint("Tangent", 58, 2, 59, 2),
    Sketcher.Constraint("Tangent", 59, 1, 60, 1),
    Sketcher.Constraint("Tangent", 60, 2, 61, 1),
    Sketcher.Constraint("Tangent", 61, 2, 62, 1),
    Sketcher.Constraint("Tangent", 62, 2, 63, 2),
    Sketcher.Constraint("Tangent", 63, 1, 64, 1),
    Sketcher.Constraint("Tangent", 64, 2, 65, 2),
    Sketcher.Constraint("Tangent", 65, 1, 54, 1),
    Sketcher.Constraint("Vertical", 1),
    Sketcher.Constraint("Vertical", 4),
    Sketcher.Constraint("Horizontal", 6),
    Sketcher.Constraint("Vertical", 8),
    Sketcher.Constraint("Vertical", 14),
    Sketcher.Constraint("Horizontal", 16),
    Sketcher.Constraint("Vertical", 22),
    Sketcher.Constraint("Vertical", 28),
    Sketcher.Constraint("Vertical", 34),
    Sketcher.Constraint("Vertical", 40),
    Sketcher.Constraint("Vertical", 46),
    Sketcher.Constraint("Vertical", 52),
    Sketcher.Constraint("Vertical", 58),
    Sketcher.Constraint("Vertical", 64),
    Sketcher.Constraint("Equal", 7, 9),
    Sketcher.Constraint("Equal", 9, 11),
    Sketcher.Constraint("Equal", 11, 13),
    Sketcher.Constraint("Equal", 13, 15),
    Sketcher.Constraint("Equal", 15, 17),
    Sketcher.Constraint("Equal", 19, 21),
    Sketcher.Constraint("Equal", 17, 23),
    Sketcher.Constraint("Equal", 21, 25),
    Sketcher.Constraint("Equal", 23, 27),
    Sketcher.Constraint("Equal", 25, 29),
    Sketcher.Constraint("Equal", 29, 31),
    Sketcher.Constraint("Equal", 31, 33),
    Sketcher.Constraint("Equal", 27, 35),
    Sketcher.Constraint("Equal", 33, 37),
    Sketcher.Constraint("Equal", 35, 39),
    Sketcher.Constraint("Equal", 37, 41),
    Sketcher.Constraint("Equal", 41, 43),
    Sketcher.Constraint("Equal", 43, 45),
    Sketcher.Constraint("Equal", 39, 47),
    Sketcher.Constraint("Equal", 45, 49),
    Sketcher.Constraint("Equal", 47, 51),
    Sketcher.Constraint("Equal", 49, 53),
    Sketcher.Constraint("Equal", 53, 55),
    Sketcher.Constraint("Equal", 55, 57),
    Sketcher.Constraint("Equal", 51, 59),
    Sketcher.Constraint("Equal", 57, 61),
    Sketcher.Constraint("Equal", 59, 63),
    Sketcher.Constraint("Equal", 61, 65),
    Sketcher.Constraint("Symmetric", 9, 3, 13, 3, -2),
    Sketcher.Constraint("Symmetric", 11, 3, 17, 3, -2),
    Sketcher.Constraint("Symmetric", 23, 3, 27, 3, -2),
    Sketcher.Constraint("Symmetric", 35, 3, 39, 3, -2),
    Sketcher.Constraint("Symmetric", 47, 3, 51, 3, -2),
    Sketcher.Constraint("Symmetric", 59, 3, 63, 3, -2),
    Sketcher.Constraint("Symmetric", 1, 2, 3, 2, -2),
    Sketcher.Constraint("Symmetric", 18, 2, 19, 1, -2),
    Sketcher.Constraint("Symmetric", 30, 2, 31, 1, -2),
    Sketcher.Constraint("Symmetric", 42, 2, 43, 1, -2),
    Sketcher.Constraint("Symmetric", 54, 2, 55, 1, -2),
    Sketcher.Constraint("PointOnObject", 25, 3, -2),
    Sketcher.Constraint("PointOnObject", 37, 3, -2),
    Sketcher.Constraint("PointOnObject", 49, 3, -2),
    Sketcher.Constraint("PointOnObject", 61, 3, -2),
    Sketcher.Constraint("PointOnObject", 2, 2, -2),
    Sketcher.Constraint("PointOnObject", 5, 2, -2),
    Sketcher.Constraint("Parallel", 0, 2),
    Sketcher.Constraint("Parallel", 3, 5),
    Sketcher.Constraint("Parallel", 2, 10),
    Sketcher.Constraint("Parallel", 12, 18),
    Sketcher.Constraint("Parallel", 20, 24),
    Sketcher.Constraint("Parallel", 26, 30),
    Sketcher.Constraint("Parallel", 32, 36),
    Sketcher.Constraint("Parallel", 38, 42),
    Sketcher.Constraint("Parallel", 44, 48),
    Sketcher.Constraint("Parallel", 50, 54),
    Sketcher.Constraint("Parallel", 56, 60),
    Sketcher.Constraint("Vertical", 21, 3, 33, 3),
    Sketcher.Constraint("Vertical", 33, 3, 45, 3),
    Sketcher.Constraint("Vertical", 45, 3, 57, 3),
    Sketcher.Constraint("Vertical", 9, 3, 0, 2),
    Sketcher.Constraint("Vertical", 6, 2, 21, 1),
    Sketcher.Constraint("Equal", 28, 34),
    Sketcher.Constraint("Equal", 40, 46),
    Sketcher.Constraint("Equal", 52, 58),
    Sketcher.Constraint("Radius", 7, Q("1 mm")),
    Sketcher.Constraint("Radius", 19, Q("2 mm")),
    Sketcher.Constraint("Angle", 0, Q("145 deg")),
    Sketcher.Constraint("DistanceX", 7, 3, -1, 1, Q("18 mm")),
    Sketcher.Constraint("DistanceY", 7, 3, -1, 1, Q("49 mm")),
    Sketcher.Constraint("DistanceY", 5, 2, -1, 1, Q("48 mm")),
    Sketcher.Constraint("DistanceY", 22, 1, 22, 2, Q("4.362531 mm")),
    Sketcher.Constraint("Distance", 10, Q("13.075612 mm")),
    Sketcher.Constraint("DistanceY", 1, 1, 1, 2, Q("7.324648 mm")),
    Sketcher.Constraint("DistanceY", 25, 3, -1, 1, Q("23.584508 mm")),
    Sketcher.Constraint("DistanceY", 31, 3, -1, 1, Q("16.259861 mm")),
    Sketcher.Constraint("DistanceY", -1, 1, 49, 3, Q("5.714082 mm")),
    Sketcher.Constraint("DistanceY", -1, 1, 55, 3, Q("13.038729 mm")),
])
pocket3 = body.newObject("PartDesign::Pocket", "Pocket002")
pocket3.Profile = sketch4
pocket3.Length = 10
doc.recompute()

fillet = body.newObject("PartDesign::Fillet", "Fillet")
fillet.Base = (pocket3, edges_at(pocket3, [(-18, 1.5, -28.072), (18, 1.5, -28.072)]))
fillet.Radius = 1
doc.recompute()

fillet2 = body.newObject("PartDesign::Fillet", "Fillet001")
fillet2.Base = (fillet, edges_at(fillet, [
    (18, 1.5, -35.396),
    (0, 1.5, -48),
    (-18, 1.5, -35.396),
    (0, 1.5, -40.675),
]))
fillet2.Radius = 2

doc.recompute()
